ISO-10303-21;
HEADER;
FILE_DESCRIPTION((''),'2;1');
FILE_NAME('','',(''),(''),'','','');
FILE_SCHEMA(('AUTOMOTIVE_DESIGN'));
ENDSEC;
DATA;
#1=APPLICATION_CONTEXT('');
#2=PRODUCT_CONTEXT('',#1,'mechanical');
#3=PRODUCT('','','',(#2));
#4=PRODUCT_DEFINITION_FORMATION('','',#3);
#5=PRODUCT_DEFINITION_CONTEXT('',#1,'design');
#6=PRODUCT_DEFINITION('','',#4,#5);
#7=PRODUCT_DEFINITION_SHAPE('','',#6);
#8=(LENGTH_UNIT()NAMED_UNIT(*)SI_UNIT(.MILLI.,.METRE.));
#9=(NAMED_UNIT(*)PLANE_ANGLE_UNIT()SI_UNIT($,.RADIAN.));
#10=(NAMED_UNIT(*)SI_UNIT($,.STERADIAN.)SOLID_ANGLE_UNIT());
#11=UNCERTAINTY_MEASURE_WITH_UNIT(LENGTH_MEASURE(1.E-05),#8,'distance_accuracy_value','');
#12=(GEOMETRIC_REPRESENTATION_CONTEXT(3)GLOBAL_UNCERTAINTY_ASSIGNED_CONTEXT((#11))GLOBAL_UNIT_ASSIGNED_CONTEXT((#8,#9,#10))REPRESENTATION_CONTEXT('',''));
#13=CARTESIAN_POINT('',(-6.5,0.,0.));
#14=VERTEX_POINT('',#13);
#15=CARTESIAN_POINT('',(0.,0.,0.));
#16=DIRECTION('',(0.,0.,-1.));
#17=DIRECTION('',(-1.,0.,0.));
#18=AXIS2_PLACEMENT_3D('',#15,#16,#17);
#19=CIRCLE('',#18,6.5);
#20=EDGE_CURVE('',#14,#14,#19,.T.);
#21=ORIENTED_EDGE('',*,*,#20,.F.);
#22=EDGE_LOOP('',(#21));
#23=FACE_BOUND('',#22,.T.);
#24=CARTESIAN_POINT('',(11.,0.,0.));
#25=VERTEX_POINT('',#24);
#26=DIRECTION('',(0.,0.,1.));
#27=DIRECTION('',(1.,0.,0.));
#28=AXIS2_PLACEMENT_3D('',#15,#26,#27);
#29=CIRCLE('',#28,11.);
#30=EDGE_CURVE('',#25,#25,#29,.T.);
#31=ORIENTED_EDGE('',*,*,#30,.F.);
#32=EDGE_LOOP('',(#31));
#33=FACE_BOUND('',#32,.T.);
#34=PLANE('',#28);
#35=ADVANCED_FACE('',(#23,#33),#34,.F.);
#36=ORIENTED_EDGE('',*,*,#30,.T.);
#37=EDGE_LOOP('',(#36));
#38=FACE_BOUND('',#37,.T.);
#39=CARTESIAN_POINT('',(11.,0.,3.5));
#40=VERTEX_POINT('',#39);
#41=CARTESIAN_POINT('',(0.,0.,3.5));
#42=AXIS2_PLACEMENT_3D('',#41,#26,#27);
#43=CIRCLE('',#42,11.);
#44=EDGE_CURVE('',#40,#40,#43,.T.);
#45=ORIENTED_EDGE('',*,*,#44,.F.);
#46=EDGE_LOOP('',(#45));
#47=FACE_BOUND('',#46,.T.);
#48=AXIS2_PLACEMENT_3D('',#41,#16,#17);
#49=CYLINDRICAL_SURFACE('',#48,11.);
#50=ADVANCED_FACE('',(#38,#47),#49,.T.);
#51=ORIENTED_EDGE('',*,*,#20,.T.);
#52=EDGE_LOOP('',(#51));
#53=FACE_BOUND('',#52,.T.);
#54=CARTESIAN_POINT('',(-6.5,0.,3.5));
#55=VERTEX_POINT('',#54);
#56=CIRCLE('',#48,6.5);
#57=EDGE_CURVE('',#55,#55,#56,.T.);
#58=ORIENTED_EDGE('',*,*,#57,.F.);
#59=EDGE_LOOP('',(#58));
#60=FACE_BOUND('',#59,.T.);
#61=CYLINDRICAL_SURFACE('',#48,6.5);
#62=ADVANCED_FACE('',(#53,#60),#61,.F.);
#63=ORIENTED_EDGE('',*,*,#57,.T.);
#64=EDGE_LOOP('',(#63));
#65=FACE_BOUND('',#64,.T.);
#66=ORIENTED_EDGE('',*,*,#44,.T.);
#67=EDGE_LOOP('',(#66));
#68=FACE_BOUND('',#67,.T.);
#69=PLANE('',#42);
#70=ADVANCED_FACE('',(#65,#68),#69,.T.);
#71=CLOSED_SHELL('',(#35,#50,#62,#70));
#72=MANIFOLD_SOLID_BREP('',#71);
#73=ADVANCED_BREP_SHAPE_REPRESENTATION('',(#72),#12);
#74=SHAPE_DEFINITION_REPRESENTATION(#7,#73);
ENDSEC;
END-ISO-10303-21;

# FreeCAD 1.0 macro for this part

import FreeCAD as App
import Part
import Sketcher
Q = App.Units.Quantity

doc = App.newDocument("Part")
params = doc.addObject("Spreadsheet::Sheet", "Params")
for row, (alias, value) in enumerate([
    ("sketch1_diameter", "22 mm"),
    ("pad1_length", "3.5 mm"),
    ("sketch2_diameter", "13 mm"),
    ("pocket1_length", "3.5 mm"),
], start=1):
    params.set(f"A{row}", alias)
    params.set(f"B{row}", "=" + value)
    params.setAlias(f"B{row}", alias)

body = doc.addObject("PartDesign::Body", "Body")

sketch1 = body.newObject("Sketcher::SketchObject", "Sketch")
sketch1.AttachmentSupport = (doc.getObject("XY_Plane"), [""])
sketch1.MapMode = "FlatFace"
sketch1.addGeometry(Part.Circle(App.Vector(0, 0, 0), App.Vector(0, 0, 1), 11), False)
sketch1.addConstraint([
    Sketcher.Constraint("Coincident", 0, 3, -1, 1),
    Sketcher.Constraint("Diameter", 0, Q("22 mm")),
])
sketch1.setExpression("Constraints[1]", "Params.sketch1_diameter")
pad1 = body.newObject("PartDesign::Pad", "Pad")
pad1.Profile = sketch1
pad1.setExpression("Length", "Params.pad1_length")

sketch2 = body.newObject("Sketcher::SketchObject", "Sketch001")
sketch2.AttachmentSupport = (doc.getObject("XY_Plane"), [""])
sketch2.MapMode = "FlatFace"
sketch2.addGeometry(Part.Circle(App.Vector(0, 0, 0), App.Vector(0, 0, 1), 6), False)
sketch2.addConstraint([
    Sketcher.Constraint("Coincident", 0, 3, -1, 1),
    Sketcher.Constraint("Diameter", 0, Q("13 mm")),
])
sketch2.setExpression("Constraints[1]", "Params.sketch2_diameter")
pocket1 = body.newObject("PartDesign::Pocket", "Pocket")
pocket1.Profile = sketch2
pocket1.setExpression("Length", "Params.pocket1_length")
pocket1.Reversed = True

doc.recompute()
